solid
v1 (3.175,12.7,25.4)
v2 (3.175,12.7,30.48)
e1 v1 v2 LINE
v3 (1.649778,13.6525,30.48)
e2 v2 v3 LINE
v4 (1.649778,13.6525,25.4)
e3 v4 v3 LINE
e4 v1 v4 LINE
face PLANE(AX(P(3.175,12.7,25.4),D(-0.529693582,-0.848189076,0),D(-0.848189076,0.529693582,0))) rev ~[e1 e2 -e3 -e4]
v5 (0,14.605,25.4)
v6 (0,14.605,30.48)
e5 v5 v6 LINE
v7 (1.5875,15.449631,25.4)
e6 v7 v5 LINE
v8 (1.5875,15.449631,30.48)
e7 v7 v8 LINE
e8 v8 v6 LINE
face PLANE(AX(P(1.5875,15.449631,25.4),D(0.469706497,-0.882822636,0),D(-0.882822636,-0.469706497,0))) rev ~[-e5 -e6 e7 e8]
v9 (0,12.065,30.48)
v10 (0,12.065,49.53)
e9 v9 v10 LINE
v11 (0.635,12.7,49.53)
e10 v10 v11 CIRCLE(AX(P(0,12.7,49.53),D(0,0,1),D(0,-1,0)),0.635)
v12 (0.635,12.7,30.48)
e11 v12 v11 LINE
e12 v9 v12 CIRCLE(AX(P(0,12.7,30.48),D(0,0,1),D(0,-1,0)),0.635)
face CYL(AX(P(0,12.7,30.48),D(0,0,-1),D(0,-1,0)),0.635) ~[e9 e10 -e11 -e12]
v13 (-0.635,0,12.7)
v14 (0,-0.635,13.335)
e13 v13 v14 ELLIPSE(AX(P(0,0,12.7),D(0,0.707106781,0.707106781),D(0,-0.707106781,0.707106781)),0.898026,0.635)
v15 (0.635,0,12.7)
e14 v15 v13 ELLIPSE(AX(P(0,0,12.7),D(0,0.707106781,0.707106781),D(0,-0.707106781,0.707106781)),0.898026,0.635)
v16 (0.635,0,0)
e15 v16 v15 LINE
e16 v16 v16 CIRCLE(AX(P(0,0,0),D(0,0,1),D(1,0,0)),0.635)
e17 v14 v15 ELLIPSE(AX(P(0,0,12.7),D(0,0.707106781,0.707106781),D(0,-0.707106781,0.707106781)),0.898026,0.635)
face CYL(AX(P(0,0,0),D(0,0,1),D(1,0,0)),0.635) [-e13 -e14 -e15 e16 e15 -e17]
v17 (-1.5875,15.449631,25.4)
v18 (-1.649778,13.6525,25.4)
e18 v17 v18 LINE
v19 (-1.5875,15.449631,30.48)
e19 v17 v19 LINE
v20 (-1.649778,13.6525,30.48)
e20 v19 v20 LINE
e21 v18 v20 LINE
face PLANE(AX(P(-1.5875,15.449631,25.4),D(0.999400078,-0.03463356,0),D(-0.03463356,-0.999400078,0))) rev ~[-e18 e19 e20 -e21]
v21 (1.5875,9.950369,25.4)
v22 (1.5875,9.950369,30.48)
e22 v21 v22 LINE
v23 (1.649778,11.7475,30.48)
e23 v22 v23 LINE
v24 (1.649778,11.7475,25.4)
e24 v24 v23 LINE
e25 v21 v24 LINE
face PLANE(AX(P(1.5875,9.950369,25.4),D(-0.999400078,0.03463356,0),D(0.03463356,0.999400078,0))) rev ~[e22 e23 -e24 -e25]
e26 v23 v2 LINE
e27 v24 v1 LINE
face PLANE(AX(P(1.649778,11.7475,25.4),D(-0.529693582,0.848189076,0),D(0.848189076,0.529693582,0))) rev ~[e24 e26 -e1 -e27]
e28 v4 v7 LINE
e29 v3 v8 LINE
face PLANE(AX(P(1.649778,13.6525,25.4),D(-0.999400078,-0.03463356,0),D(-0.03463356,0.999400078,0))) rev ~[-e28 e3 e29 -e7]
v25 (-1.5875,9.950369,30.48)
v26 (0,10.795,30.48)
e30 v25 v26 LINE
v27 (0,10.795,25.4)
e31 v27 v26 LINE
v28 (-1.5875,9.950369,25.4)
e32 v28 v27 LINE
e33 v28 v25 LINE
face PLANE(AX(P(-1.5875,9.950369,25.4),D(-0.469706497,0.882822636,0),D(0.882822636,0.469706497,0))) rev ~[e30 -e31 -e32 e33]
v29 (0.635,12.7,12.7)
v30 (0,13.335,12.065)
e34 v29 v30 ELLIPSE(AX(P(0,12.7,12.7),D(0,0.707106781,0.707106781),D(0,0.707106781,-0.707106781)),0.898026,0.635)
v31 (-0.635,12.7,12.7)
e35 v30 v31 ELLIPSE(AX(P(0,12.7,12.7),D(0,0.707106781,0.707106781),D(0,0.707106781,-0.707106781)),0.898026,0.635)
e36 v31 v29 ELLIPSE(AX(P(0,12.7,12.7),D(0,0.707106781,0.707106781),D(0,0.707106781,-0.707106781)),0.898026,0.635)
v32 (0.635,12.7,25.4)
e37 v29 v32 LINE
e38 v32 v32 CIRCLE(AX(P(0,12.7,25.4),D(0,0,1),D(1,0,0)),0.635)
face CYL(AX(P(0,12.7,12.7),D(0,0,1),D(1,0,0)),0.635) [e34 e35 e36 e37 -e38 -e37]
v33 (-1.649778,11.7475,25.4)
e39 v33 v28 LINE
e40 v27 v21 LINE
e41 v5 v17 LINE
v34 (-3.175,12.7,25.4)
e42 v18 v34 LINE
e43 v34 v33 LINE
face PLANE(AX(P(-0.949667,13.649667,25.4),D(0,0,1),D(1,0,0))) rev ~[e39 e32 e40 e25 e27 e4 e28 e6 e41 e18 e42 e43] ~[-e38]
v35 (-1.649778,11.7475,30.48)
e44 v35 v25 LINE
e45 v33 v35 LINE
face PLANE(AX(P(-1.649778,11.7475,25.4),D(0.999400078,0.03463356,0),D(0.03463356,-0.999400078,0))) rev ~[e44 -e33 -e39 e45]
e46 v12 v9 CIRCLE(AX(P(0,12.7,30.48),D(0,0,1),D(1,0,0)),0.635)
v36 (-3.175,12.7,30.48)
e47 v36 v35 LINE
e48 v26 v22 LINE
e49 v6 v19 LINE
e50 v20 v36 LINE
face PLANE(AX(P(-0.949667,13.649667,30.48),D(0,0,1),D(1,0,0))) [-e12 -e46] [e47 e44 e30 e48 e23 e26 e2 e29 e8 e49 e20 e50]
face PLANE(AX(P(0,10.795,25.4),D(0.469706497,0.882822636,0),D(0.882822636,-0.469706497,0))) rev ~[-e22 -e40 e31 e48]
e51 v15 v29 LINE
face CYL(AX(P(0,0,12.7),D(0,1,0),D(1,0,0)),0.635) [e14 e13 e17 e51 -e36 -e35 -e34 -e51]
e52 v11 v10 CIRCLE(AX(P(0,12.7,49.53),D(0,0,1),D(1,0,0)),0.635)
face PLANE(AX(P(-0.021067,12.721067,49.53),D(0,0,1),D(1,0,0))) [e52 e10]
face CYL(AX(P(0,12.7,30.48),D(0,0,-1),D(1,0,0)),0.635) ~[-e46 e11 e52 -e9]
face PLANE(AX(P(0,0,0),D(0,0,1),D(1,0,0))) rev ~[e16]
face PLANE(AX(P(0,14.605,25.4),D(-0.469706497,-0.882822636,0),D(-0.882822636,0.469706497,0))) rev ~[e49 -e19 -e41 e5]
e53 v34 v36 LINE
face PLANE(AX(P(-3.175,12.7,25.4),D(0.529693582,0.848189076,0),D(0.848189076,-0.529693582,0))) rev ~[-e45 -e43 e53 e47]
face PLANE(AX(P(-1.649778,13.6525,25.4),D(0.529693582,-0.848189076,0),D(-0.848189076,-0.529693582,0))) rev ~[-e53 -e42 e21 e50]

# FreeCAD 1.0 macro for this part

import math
import FreeCAD as App
import Part
import Sketcher

V = App.Vector
Q = App.Units.Quantity

doc = App.newDocument("Part")
body = doc.addObject("PartDesign::Body", "Body")

sketch1 = body.newObject("Sketcher::SketchObject", "Sketch")
sketch1.AttachmentSupport = (doc.getObject("XY_Plane"), [""])
sketch1.MapMode = "FlatFace"
sketch1.addGeometry(Part.Circle(V(0, 0, 0), V(0, 0, 1), 0.635), False)
sketch1.addConstraint(Sketcher.Constraint("Coincident", 0, 3, -1, 1))
sketch1.addConstraint(Sketcher.Constraint("Diameter", 0, Q("0.05 in")))

sketch2 = body.newObject("Sketcher::SketchObject", "Sketch001")
sketch2.AttachmentSupport = (doc.getObject("YZ_Plane"), [""])
sketch2.MapMode = "FlatFace"
sketch2.addGeometry(Part.LineSegment(V(0, 0, 0), V(0, 12.7, 0)), False)
sketch2.addGeometry(Part.LineSegment(V(0, 12.7, 0), V(12.7, 12.7, 0)), False)
sketch2.addGeometry(Part.LineSegment(V(12.7, 12.7, 0), V(12.7, 25.4, 0)), False)
sketch2.addConstraint(Sketcher.Constraint("Coincident", 0, 2, 1, 1))
sketch2.addConstraint(Sketcher.Constraint("Coincident", 1, 2, 2, 1))
sketch2.addConstraint(Sketcher.Constraint("Vertical", 0))
sketch2.addConstraint(Sketcher.Constraint("Horizontal", 1))
sketch2.addConstraint(Sketcher.Constraint("Vertical", 2))
sketch2.addConstraint(Sketcher.Constraint("Coincident", 0, 1, -1, 1))
sketch2.addConstraint(Sketcher.Constraint("Equal", 1, 0))
sketch2.addConstraint(Sketcher.Constraint("Equal", 0, 2))
sketch2.addConstraint(Sketcher.Constraint("DistanceX", 1, 1, 1, 2, Q("0.5 in")))
doc.recompute()

additivepipe = body.newObject("PartDesign::AdditivePipe", "AdditivePipe")
additivepipe.Profile = sketch1
additivepipe.Spine = (sketch2, ["Edge1", "Edge2", "Edge3"])
additivepipe.Transition = "Right corner"

sketch3 = body.newObject("Sketcher::SketchObject", "Sketch002")
sketch3.AttachmentSupport = (doc.getObject("XY_Plane"), [""])
sketch3.MapMode = "FlatFace"
sketch3.AttachmentOffset = App.Placement(V(0, 0, 1 * 25.4), App.Rotation())
sketch3.addGeometry(Part.LineSegment(V(1.649778, 13.6525, 0), V(1.5875, 15.449631, 0)), False)
sketch3.addGeometry(Part.LineSegment(V(1.5875, 15.449631, 0), V(0, 14.605, 0)), False)
sketch3.addGeometry(Part.LineSegment(V(0, 14.605, 0), V(-1.5875, 15.449631, 0)), False)
sketch3.addGeometry(Part.LineSegment(V(-1.5875, 15.449631, 0), V(-1.649778, 13.6525, 0)), False)
sketch3.addGeometry(Part.LineSegment(V(-1.649778, 13.6525, 0), V(-3.175, 12.7, 0)), False)
sketch3.addGeometry(Part.LineSegment(V(-3.175, 12.7, 0), V(-1.649778, 11.7475, 0)), False)
sketch3.addGeometry(Part.LineSegment(V(-1.649778, 11.7475, 0), V(-1.5875, 9.950369, 0)), False)
sketch3.addGeometry(Part.LineSegment(V(-1.5875, 9.950369, 0), V(0, 10.795, 0)), False)
sketch3.addGeometry(Part.LineSegment(V(0, 10.795, 0), V(1.5875, 9.950369, 0)), False)
sketch3.addGeometry(Part.LineSegment(V(1.5875, 9.950369, 0), V(1.649778, 11.7475, 0)), False)
sketch3.addGeometry(Part.LineSegment(V(1.649778, 11.7475, 0), V(3.175, 12.7, 0)), False)
sketch3.addGeometry(Part.LineSegment(V(3.175, 12.7, 0), V(1.649778, 13.6525, 0)), False)
sketch3.addConstraint(Sketcher.Constraint("Coincident", 0, 2, 1, 1))
sketch3.addConstraint(Sketcher.Constraint("Coincident", 1, 2, 2, 1))
sketch3.addConstraint(Sketcher.Constraint("Coincident", 2, 2, 3, 1))
sketch3.addConstraint(Sketcher.Constraint("Coincident", 3, 2, 4, 1))
sketch3.addConstraint(Sketcher.Constraint("Coincident", 4, 2, 5, 1))
sketch3.addConstraint(Sketcher.Constraint("Coincident", 5, 2, 6, 1))
sketch3.addConstraint(Sketcher.Constraint("Coincident", 6, 2, 7, 1))
sketch3.addConstraint(Sketcher.Constraint("Coincident", 7, 2, 8, 1))
sketch3.addConstraint(Sketcher.Constraint("Coincident", 8, 2, 9, 1))
sketch3.addConstraint(Sketcher.Constraint("Coincident", 9, 2, 10, 1))
sketch3.addConstraint(Sketcher.Constraint("Coincident", 10, 2, 11, 1))
sketch3.addConstraint(Sketcher.Constraint("Coincident", 11, 2, 0, 1))
sketch3.addConstraint(Sketcher.Constraint("Symmetric", 0, 2, 2, 2, -2))
sketch3.addConstraint(Sketcher.Constraint("Symmetric", 6, 2, 8, 2, -2))
sketch3.addConstraint(Sketcher.Constraint("Symmetric", 5, 2, 9, 2, -2))
sketch3.addConstraint(Sketcher.Constraint("Symmetric", 4, 2, 10, 2, -2))
sketch3.addConstraint(Sketcher.Constraint("Symmetric", 3, 2, 11, 2, -2))
sketch3.addConstraint(Sketcher.Constraint("PointOnObject", 1, 2, -2))
sketch3.addConstraint(Sketcher.Constraint("PointOnObject", 7, 2, -2))
sketch3.addConstraint(Sketcher.Constraint("Parallel", 0, 6))
sketch3.addConstraint(Sketcher.Constraint("Parallel", 1, 7))
sketch3.addConstraint(Sketcher.Constraint("Parallel", 4, 10))
sketch3.addConstraint(Sketcher.Constraint("Vertical", 3, 2, 5, 2))
sketch3.addConstraint(Sketcher.Constraint("Vertical", 2, 2, 6, 2))
sketch3.addConstraint(Sketcher.Constraint("Equal", 0, 1))
sketch3.addConstraint(Sketcher.Constraint("Equal", 3, 4))
sketch3.addConstraint(Sketcher.Constraint("DistanceY", -1, 1, 4, 2, Q("0.5 in")))
sketch3.addConstraint(Sketcher.Constraint("DistanceY", 7, 2, 1, 2, Q("0.15 in")))
sketch3.addConstraint(Sketcher.Constraint("DistanceX", -1, 1, 0, 2, Q("0.0625 in")))
sketch3.addConstraint(Sketcher.Constraint("DistanceX", 4, 2, -1, 1, Q("0.125 in")))
sketch3.addConstraint(Sketcher.Constraint("DistanceY", 5, 2, 3, 2, Q("0.075 in")))
pad1 = body.newObject("PartDesign::Pad", "Pad")
pad1.Profile = sketch3
pad1.Length = Q("0.2 in")

sketch4 = body.newObject("Sketcher::SketchObject", "Sketch003")
sketch4.AttachmentSupport = (doc.getObject("XY_Plane"), [""])
sketch4.MapMode = "FlatFace"
sketch4.AttachmentOffset = App.Placement(V(0, 0, 1.2 * 25.4), App.Rotation())
sketch4.addGeometry(Part.ArcOfCircle(Part.Circle(V(0, 12.7, 0), V(0, 0, 1), 0.635), math.radians(0), math.radians(270)), False)
sketch4.addGeometry(Part.ArcOfCircle(Part.Circle(V(0, 12.7, 0), V(0, 0, 1), 0.635), math.radians(-90), math.radians(0)), False)
sketch4.addConstraint(Sketcher.Constraint("Tangent", 0, 1, 1, 2))
sketch4.addConstraint(Sketcher.Constraint("Coincident", 1, 1, 0, 2))
sketch4.addConstraint(Sketcher.Constraint("PointOnObject", 0, 3, -2))
sketch4.addConstraint(Sketcher.Constraint("PointOnObject", 1, 1, -2))
sketch4.addConstraint(Sketcher.Constraint("Horizontal", 1, 3, 0, 1))
sketch4.addConstraint(Sketcher.Constraint("Radius", 0, Q("0.025 in")))
sketch4.addConstraint(Sketcher.Constraint("DistanceY", -1, 1, 0, 3, Q("0.5 in")))
pad2 = body.newObject("PartDesign::Pad", "Pad001")
pad2.Profile = sketch4
pad2.Length = Q("0.75 in")

doc.recompute()
